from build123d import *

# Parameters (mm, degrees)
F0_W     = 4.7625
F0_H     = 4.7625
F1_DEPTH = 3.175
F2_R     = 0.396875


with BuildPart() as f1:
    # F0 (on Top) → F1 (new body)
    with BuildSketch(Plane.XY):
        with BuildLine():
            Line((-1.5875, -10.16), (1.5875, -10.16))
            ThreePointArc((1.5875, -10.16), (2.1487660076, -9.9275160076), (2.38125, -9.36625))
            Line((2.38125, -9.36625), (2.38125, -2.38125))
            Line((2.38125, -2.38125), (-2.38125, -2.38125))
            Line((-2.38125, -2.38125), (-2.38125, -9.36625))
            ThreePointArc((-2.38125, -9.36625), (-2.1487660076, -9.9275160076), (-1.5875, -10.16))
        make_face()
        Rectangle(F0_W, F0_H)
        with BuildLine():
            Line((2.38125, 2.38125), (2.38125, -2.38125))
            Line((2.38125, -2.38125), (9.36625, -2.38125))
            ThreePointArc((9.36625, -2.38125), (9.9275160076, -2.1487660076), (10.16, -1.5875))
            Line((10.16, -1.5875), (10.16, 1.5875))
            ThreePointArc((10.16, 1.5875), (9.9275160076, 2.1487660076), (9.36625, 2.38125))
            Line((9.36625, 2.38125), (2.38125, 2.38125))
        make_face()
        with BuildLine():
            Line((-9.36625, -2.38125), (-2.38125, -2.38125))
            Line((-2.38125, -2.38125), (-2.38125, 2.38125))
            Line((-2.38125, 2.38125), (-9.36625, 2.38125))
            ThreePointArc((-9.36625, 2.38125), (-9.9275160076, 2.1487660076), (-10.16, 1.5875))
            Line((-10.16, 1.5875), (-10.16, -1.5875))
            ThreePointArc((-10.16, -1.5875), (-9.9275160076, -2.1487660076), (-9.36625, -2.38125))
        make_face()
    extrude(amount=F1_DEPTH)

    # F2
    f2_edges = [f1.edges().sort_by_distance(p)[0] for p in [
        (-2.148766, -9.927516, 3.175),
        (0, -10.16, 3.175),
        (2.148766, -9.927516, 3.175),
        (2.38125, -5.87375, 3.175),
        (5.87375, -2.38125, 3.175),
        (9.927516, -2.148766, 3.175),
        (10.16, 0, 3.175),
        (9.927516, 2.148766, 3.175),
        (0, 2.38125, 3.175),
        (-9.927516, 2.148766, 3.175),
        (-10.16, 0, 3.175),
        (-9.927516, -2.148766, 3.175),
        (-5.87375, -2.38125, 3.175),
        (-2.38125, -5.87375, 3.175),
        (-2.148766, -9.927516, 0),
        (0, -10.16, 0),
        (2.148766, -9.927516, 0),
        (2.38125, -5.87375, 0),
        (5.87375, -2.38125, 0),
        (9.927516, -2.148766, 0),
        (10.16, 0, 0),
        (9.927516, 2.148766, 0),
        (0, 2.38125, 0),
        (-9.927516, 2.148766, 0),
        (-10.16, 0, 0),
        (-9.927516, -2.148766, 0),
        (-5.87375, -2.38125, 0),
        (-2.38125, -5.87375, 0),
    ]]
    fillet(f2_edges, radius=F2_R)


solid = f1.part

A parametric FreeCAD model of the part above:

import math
import FreeCAD as App
import Part
import Sketcher
Q = App.Units.Quantity


def edges_at(feature, points):
    """Names of the edges that pass closest to the given points."""
    edges = feature.Shape.Edges
    near = lambda p: min(range(len(edges)), key=lambda i: edges[i].distToShape(Part.Vertex(*p))[0])
    return sorted({f"Edge{near(p) + 1}" for p in points})

doc = App.newDocument("Part")
body = doc.addObject("PartDesign::Body", "Body")

# Sketch on XY plane
sketch1 = body.newObject("Sketcher::SketchObject", "Sketch")
sketch1.AttachmentSupport = (doc.getObject("XY_Plane"), [""])
sketch1.MapMode = "FlatFace"
sketch1.addGeometry([
    Part.LineSegment(App.Vector(-1.5875, -10.16, 0), App.Vector(1.5875, -10.16, 0)),  # 0
    Part.ArcOfCircle(Part.Circle(App.Vector(1.5875, -9.36625, 0), App.Vector(0, 0, 1), 0.79375), math.radians(-90), math.radians(0)),  # 1
    Part.LineSegment(App.Vector(2.38125, -9.36625, 0), App.Vector(2.38125, -2.38125, 0)),  # 2
    Part.LineSegment(App.Vector(2.38125, -2.38125, 0), App.Vector(9.36625, -2.38125, 0)),  # 3
    Part.ArcOfCircle(Part.Circle(App.Vector(9.36625, -1.5875, 0), App.Vector(0, 0, 1), 0.79375), math.radians(-90), math.radians(0)),  # 4
    Part.LineSegment(App.Vector(10.16, -1.5875, 0), App.Vector(10.16, 1.5875, 0)),  # 5
    Part.ArcOfCircle(Part.Circle(App.Vector(9.36625, 1.5875, 0), App.Vector(0, 0, 1), 0.79375), math.radians(0), math.radians(90)),  # 6
    Part.LineSegment(App.Vector(9.36625, 2.38125, 0), App.Vector(-9.36625, 2.38125, 0)),  # 7
    Part.ArcOfCircle(Part.Circle(App.Vector(-9.36625, 1.5875, 0), App.Vector(0, 0, 1), 0.79375), math.radians(90), math.radians(180)),  # 8
    Part.LineSegment(App.Vector(-10.16, 1.5875, 0), App.Vector(-10.16, -1.5875, 0)),  # 9
    Part.ArcOfCircle(Part.Circle(App.Vector(-9.36625, -1.5875, 0), App.Vector(0, 0, 1), 0.79375), math.radians(180), math.radians(270)),  # 10
    Part.LineSegment(App.Vector(-9.36625, -2.38125, 0), App.Vector(-2.38125, -2.38125, 0)),  # 11
    Part.LineSegment(App.Vector(-2.38125, -2.38125, 0), App.Vector(-2.38125, -9.36625, 0)),  # 12
    Part.ArcOfCircle(Part.Circle(App.Vector(-1.5875, -9.36625, 0), App.Vector(0, 0, 1), 0.79375), math.radians(180), math.radians(270)),  # 13
], False)
sketch1.addConstraint([
    Sketcher.Constraint("Tangent", 0, 2, 1, 1),
    Sketcher.Constraint("Tangent", 1, 2, 2, 1),
    Sketcher.Constraint("Coincident", 2, 2, 3, 1),
    Sketcher.Constraint("Tangent", 3, 2, 4, 1),
    Sketcher.Constraint("Tangent", 4, 2, 5, 1),
    Sketcher.Constraint("Tangent", 5, 2, 6, 1),
    Sketcher.Constraint("Tangent", 6, 2, 7, 1),
    Sketcher.Constraint("Tangent", 7, 2, 8, 1),
    Sketcher.Constraint("Tangent", 8, 2, 9, 1),
    Sketcher.Constraint("Tangent", 9, 2, 10, 1),
    Sketcher.Constraint("Tangent", 10, 2, 11, 1),
    Sketcher.Constraint("Coincident", 11, 2, 12, 1),
    Sketcher.Constraint("Tangent", 12, 2, 13, 1),
    Sketcher.Constraint("Tangent", 13, 2, 0, 1),
    Sketcher.Constraint("Horizontal", 0),
    Sketcher.Constraint("Vertical", 2),
    Sketcher.Constraint("Horizontal", 3),
    Sketcher.Constraint("Vertical", 5),
    Sketcher.Constraint("Horizontal", 7),
    Sketcher.Constraint("Vertical", 9),
    Sketcher.Constraint("Horizontal", 11),
    Sketcher.Constraint("Vertical", 12),
    Sketcher.Constraint("Equal", 1, 4),
    Sketcher.Constraint("Equal", 4, 6),
    Sketcher.Constraint("Equal", 6, 8),
    Sketcher.Constraint("Equal", 8, 10),
    Sketcher.Constraint("Equal", 10, 13),
    Sketcher.Constraint("Symmetric", 4, 3, 8, 3, -1, 1),
    Sketcher.Constraint("Symmetric", 2, 2, 11, 2, -2),
    Sketcher.Constraint("Equal", 11, 2),
    Sketcher.Constraint("Equal", 0, 5),
    Sketcher.Constraint("Radius", 1, Q("0.03125 in")),
    Sketcher.Constraint("DistanceY", 0, 2, -1, 1, Q("0.4 in")),
    Sketcher.Constraint("DistanceX", 0, 1, 0, 2, Q("0.125 in")),
])
pad1 = body.newObject("PartDesign::Pad", "Pad")
pad1.Profile = sketch1
pad1.Length = Q("0.125 in")
doc.recompute()

fillet = body.newObject("PartDesign::Fillet", "Fillet")
fillet.Base = (pad1, edges_at(pad1, [
    (-2.149, -9.928, 3.175),
    (0, -10.16, 3.175),
    (2.149, -9.928, 3.175),
    (2.381, -5.874, 3.175),
    (5.874, -2.381, 3.175),
    (9.928, -2.149, 3.175),
    (10.16, 0, 3.175),
    (9.928, 2.149, 3.175),
    (0, 2.381, 3.175),
    (-9.928, 2.149, 3.175),
    (-10.16, 0, 3.175),
    (-9.928, -2.149, 3.175),
    (-5.874, -2.381, 3.175),
    (-2.381, -5.874, 3.175),
    (-2.149, -9.928, 0),
    (0, -10.16, 0),
    (2.149, -9.928, 0),
    (2.381, -5.874, 0),
    (5.874, -2.381, 0),
    (9.928, -2.149, 0),
    (10.16, 0, 0),
    (9.928, 2.149, 0),
    (0, 2.381, 0),
    (-9.928, 2.149, 0),
    (-10.16, 0, 0),
    (-9.928, -2.149, 0),
    (-5.874, -2.381, 0),
    (-2.381, -5.874, 0),
]))
fillet.Radius = Q("0.015625 in")

doc.recompute()
